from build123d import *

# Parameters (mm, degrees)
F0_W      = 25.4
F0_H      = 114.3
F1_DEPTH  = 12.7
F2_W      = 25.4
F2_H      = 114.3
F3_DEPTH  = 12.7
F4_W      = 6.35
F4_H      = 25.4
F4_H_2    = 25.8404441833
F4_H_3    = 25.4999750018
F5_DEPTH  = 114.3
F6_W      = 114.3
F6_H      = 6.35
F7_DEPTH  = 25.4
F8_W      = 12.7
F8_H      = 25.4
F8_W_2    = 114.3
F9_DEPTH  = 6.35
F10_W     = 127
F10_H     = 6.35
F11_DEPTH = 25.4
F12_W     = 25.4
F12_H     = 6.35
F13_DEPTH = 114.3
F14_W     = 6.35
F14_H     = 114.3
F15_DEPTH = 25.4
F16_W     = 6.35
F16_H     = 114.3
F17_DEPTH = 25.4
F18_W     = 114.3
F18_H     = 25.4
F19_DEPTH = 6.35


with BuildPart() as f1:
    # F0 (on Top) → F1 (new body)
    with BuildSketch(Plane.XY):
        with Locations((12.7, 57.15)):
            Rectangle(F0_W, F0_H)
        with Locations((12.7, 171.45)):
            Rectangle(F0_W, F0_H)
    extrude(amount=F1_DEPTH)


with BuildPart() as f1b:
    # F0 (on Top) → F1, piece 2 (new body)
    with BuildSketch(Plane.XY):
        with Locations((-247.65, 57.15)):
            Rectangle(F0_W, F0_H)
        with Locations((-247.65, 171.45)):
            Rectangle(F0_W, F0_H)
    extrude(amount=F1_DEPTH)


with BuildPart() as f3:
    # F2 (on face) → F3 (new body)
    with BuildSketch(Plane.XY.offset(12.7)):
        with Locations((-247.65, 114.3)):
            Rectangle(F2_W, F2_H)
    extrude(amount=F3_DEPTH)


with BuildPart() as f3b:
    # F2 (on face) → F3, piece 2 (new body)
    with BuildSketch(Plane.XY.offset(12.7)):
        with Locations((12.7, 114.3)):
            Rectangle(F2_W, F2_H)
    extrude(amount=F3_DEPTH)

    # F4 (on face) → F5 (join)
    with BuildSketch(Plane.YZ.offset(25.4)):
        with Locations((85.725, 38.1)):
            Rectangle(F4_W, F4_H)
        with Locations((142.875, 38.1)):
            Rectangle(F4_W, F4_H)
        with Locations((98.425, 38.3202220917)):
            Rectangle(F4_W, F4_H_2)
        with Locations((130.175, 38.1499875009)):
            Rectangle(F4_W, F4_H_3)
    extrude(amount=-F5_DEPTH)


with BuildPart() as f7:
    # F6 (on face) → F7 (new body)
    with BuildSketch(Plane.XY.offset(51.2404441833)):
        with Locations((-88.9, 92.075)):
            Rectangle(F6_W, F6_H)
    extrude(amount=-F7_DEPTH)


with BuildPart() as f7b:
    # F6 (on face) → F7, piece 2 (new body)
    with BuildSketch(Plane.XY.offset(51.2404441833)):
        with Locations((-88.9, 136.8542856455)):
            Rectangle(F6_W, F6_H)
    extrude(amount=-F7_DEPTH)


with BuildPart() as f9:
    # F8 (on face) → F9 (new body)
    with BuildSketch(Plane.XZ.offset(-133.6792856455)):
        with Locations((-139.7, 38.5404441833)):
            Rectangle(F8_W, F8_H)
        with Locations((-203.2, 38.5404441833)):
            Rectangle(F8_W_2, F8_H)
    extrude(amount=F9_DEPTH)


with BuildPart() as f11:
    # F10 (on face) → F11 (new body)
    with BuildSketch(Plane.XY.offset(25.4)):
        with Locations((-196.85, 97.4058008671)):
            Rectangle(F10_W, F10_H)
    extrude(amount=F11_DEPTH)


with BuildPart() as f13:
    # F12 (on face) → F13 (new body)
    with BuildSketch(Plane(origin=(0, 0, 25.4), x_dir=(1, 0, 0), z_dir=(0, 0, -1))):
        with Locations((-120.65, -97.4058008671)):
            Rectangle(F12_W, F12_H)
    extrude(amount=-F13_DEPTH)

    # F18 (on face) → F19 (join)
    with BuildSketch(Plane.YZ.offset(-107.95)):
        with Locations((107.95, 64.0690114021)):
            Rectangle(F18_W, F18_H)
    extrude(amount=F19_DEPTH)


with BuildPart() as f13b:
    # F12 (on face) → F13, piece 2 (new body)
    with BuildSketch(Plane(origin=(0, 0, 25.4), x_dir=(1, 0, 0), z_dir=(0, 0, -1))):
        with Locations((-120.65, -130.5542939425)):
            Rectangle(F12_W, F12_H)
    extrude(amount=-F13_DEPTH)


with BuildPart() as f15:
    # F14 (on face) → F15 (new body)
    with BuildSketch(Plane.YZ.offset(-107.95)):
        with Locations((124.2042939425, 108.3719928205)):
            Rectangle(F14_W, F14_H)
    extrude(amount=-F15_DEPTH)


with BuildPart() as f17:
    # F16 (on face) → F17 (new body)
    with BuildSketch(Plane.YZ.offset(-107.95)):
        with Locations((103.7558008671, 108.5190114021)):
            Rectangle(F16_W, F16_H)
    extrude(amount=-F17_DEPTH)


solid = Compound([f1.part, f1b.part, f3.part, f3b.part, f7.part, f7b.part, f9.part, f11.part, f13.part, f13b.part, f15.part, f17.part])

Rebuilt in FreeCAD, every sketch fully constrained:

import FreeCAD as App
import Part
import Sketcher

V = App.Vector
Q = App.Units.Quantity


def add_polygon(sketch, points):
    """Adds a closed chain of lines whose ends are joined by coincident constraints."""
    first, n = sketch.GeometryCount, len(points)
    for a, b in zip(points, points[1:] + points[:1]):
        sketch.addGeometry(Part.LineSegment(App.Vector(*a, 0), App.Vector(*b, 0)), False)
    for i in range(n):
        sketch.addConstraint(Sketcher.Constraint("Coincident", first + i, 2, first + (i + 1) % n, 1))

doc = App.newDocument("Part")
body = doc.addObject("PartDesign::Body", "Body")

# Sketch on XY plane
sketch1 = doc.addObject("Sketcher::SketchObject", "Sketch")
body.addObject(sketch1)
sketch1.AttachmentSupport = (doc.XY_Plane, [""])
sketch1.MapMode = "FlatFace"
add_polygon(sketch1, [(0, 0), (25, 0), (25, 229), (0, 229)])  # lines 0-3
sketch1.addConstraint(Sketcher.Constraint("Horizontal", 0))
sketch1.addConstraint(Sketcher.Constraint("Vertical", 1))
sketch1.addConstraint(Sketcher.Constraint("Horizontal", 2))
sketch1.addConstraint(Sketcher.Constraint("Vertical", 3))
sketch1.addConstraint(Sketcher.Constraint("Coincident", 3, 2, -1, 1))
sketch1.addConstraint(Sketcher.Constraint("DistanceX", 0, 1, 0, 2, Q("1 in")))
sketch1.addConstraint(Sketcher.Constraint("DistanceY", 1, 1, 1, 2, Q("9 in")))
pad1 = doc.addObject("PartDesign::Pad", "Pad")
body.addObject(pad1)
pad1.Profile = sketch1
pad1.Length = Q("0.5 in")
body2 = doc.addObject("PartDesign::Body", "Body001")

# Sketch on XY plane
sketch2 = doc.addObject("Sketcher::SketchObject", "Sketch001")
body2.addObject(sketch2)
sketch2.AttachmentSupport = (doc.getObject("XY_Plane001"), [""])
sketch2.MapMode = "FlatFace"
add_polygon(sketch2, [(-260, 0), (-235, 0), (-235, 229), (-260, 229)])  # lines 0-3
sketch2.addConstraint(Sketcher.Constraint("Horizontal", 0))
sketch2.addConstraint(Sketcher.Constraint("Vertical", 1))
sketch2.addConstraint(Sketcher.Constraint("Horizontal", 2))
sketch2.addConstraint(Sketcher.Constraint("Vertical", 3))
sketch2.addConstraint(Sketcher.Constraint("PointOnObject", 0, 2, -1))
sketch2.addConstraint(Sketcher.Constraint("DistanceX", 0, 1, 0, 2, Q("1 in")))
sketch2.addConstraint(Sketcher.Constraint("DistanceY", 1, 1, 1, 2, Q("9 in")))
sketch2.addConstraint(Sketcher.Constraint("DistanceX", 0, 2, -1, 1, Q("9.25 in")))
pad2 = doc.addObject("PartDesign::Pad", "Pad001")
body2.addObject(pad2)
pad2.Profile = sketch2
pad2.Length = Q("0.5 in")
body3 = doc.addObject("PartDesign::Body", "Body002")

# Sketch on XY plane
sketch3 = doc.addObject("Sketcher::SketchObject", "Sketch002")
body3.addObject(sketch3)
sketch3.AttachmentSupport = (doc.getObject("XY_Plane002"), [""])
sketch3.MapMode = "FlatFace"
sketch3.AttachmentOffset = App.Placement(V(0, 0, 0.5 * 25.4), App.Rotation())
add_polygon(sketch3, [(-260, 171), (-260, 57), (-235, 57), (-235, 171)])  # lines 0-3
sketch3.addConstraint(Sketcher.Constraint("Vertical", 0))
sketch3.addConstraint(Sketcher.Constraint("Horizontal", 1))
sketch3.addConstraint(Sketcher.Constraint("Vertical", 2))
sketch3.addConstraint(Sketcher.Constraint("Horizontal", 3))
sketch3.addConstraint(Sketcher.Constraint("DistanceX", 1, 1, 1, 2, Q("1 in")))
sketch3.addConstraint(Sketcher.Constraint("DistanceY", 0, 2, 0, 1, Q("4.5 in")))
sketch3.addConstraint(Sketcher.Constraint("DistanceX", 0, 2, -1, 1, Q("10.25 in")))
sketch3.addConstraint(Sketcher.Constraint("DistanceY", -1, 1, 0, 2, Q("2.25 in")))
pad3 = doc.addObject("PartDesign::Pad", "Pad002")
body3.addObject(pad3)
pad3.Profile = sketch3
pad3.Length = Q("0.5 in")
body4 = doc.addObject("PartDesign::Body", "Body003")

# Sketch on XY plane
sketch4 = doc.addObject("Sketcher::SketchObject", "Sketch003")
body4.addObject(sketch4)
sketch4.AttachmentSupport = (doc.getObject("XY_Plane003"), [""])
sketch4.MapMode = "FlatFace"
sketch4.AttachmentOffset = App.Placement(V(0, 0, 0.5 * 25.4), App.Rotation())
add_polygon(sketch4, [(0, 171), (0, 57), (25, 57), (25, 171)])  # lines 0-3
sketch4.addConstraint(Sketcher.Constraint("Vertical", 0))
sketch4.addConstraint(Sketcher.Constraint("Horizontal", 1))
sketch4.addConstraint(Sketcher.Constraint("Vertical", 2))
sketch4.addConstraint(Sketcher.Constraint("Horizontal", 3))
sketch4.addConstraint(Sketcher.Constraint("PointOnObject", 0, 2, -2))
sketch4.addConstraint(Sketcher.Constraint("DistanceX", 1, 1, 1, 2, Q("1 in")))
sketch4.addConstraint(Sketcher.Constraint("DistanceY", 0, 2, 0, 1, Q("4.5 in")))
sketch4.addConstraint(Sketcher.Constraint("DistanceY", -1, 1, 0, 2, Q("2.25 in")))
pad4 = doc.addObject("PartDesign::Pad", "Pad003")
body4.addObject(pad4)
pad4.Profile = sketch4
pad4.Length = Q("0.5 in")

# Sketch on YZ plane
sketch5 = doc.addObject("Sketcher::SketchObject", "Sketch004")
body4.addObject(sketch5)
sketch5.AttachmentSupport = (doc.getObject("YZ_Plane003"), [""])
sketch5.MapMode = "FlatFace"
sketch5.AttachmentOffset = App.Placement(V(0, 0, 1 * 25.4), App.Rotation())
add_polygon(sketch5, [(83, 51), (83, 25), (89, 25), (89, 51)])  # lines 0-3
add_polygon(sketch5, [(140, 51), (140, 25), (146, 25), (146, 51)])  # lines 4-7
add_polygon(sketch5, [(95, 51), (95, 25), (102, 25), (102, 51)])  # lines 8-11
add_polygon(sketch5, [(127, 51), (127, 25), (133, 25), (133, 51)])  # lines 12-15
sketch5.addConstraint(Sketcher.Constraint("Vertical", 0))
sketch5.addConstraint(Sketcher.Constraint("Horizontal", 1))
sketch5.addConstraint(Sketcher.Constraint("Vertical", 2))
sketch5.addConstraint(Sketcher.Constraint("Horizontal", 3))
sketch5.addConstraint(Sketcher.Constraint("Vertical", 4))
sketch5.addConstraint(Sketcher.Constraint("Horizontal", 5))
sketch5.addConstraint(Sketcher.Constraint("Vertical", 6))
sketch5.addConstraint(Sketcher.Constraint("Horizontal", 7))
sketch5.addConstraint(Sketcher.Constraint("Vertical", 8))
sketch5.addConstraint(Sketcher.Constraint("Horizontal", 9))
sketch5.addConstraint(Sketcher.Constraint("Vertical", 10))
sketch5.addConstraint(Sketcher.Constraint("Horizontal", 11))
sketch5.addConstraint(Sketcher.Constraint("Vertical", 12))
sketch5.addConstraint(Sketcher.Constraint("Horizontal", 13))
sketch5.addConstraint(Sketcher.Constraint("Vertical", 14))
sketch5.addConstraint(Sketcher.Constraint("Horizontal", 15))
sketch5.addConstraint(Sketcher.Constraint("Horizontal", 1, 2, 4, 2))
sketch5.addConstraint(Sketcher.Constraint("Horizontal", 3, 2, 6, 2))
sketch5.addConstraint(Sketcher.Constraint("Horizontal", 5, 2, 8, 2))
sketch5.addConstraint(Sketcher.Constraint("Horizontal", 9, 2, 12, 2))
sketch5.addConstraint(Sketcher.Constraint("Equal", 3, 5))
sketch5.addConstraint(Sketcher.Constraint("Equal", 7, 9))
sketch5.addConstraint(Sketcher.Constraint("Equal", 11, 13))
sketch5.addConstraint(Sketcher.Constraint("DistanceY", 0, 2, 0, 1, Q("1 in")))
sketch5.addConstraint(Sketcher.Constraint("DistanceY", -1, 1, 0, 2, Q("1 in")))
sketch5.addConstraint(Sketcher.Constraint("DistanceX", -1, 1, 9, 2, Q("4 in")))
sketch5.addConstraint(Sketcher.Constraint("DistanceX", -1, 1, 12, 2, Q("5 in")))
sketch5.addConstraint(Sketcher.Constraint("DistanceX", 1, 2, 4, 2, Q("2 in")))
sketch5.addConstraint(Sketcher.Constraint("DistanceX", 1, 1, 1, 2, Q("0.25 in")))
sketch5.addConstraint(Sketcher.Constraint("DistanceX", -1, 1, 1, 2, Q("3.5 in")))
sketch5.addConstraint(Sketcher.Constraint("DistanceY", 8, 2, 8, 1, 25.840444))
sketch5.addConstraint(Sketcher.Constraint("DistanceY", 12, 2, 12, 1, 25.499975))
pad5 = doc.addObject("PartDesign::Pad", "Pad004")
body4.addObject(pad5)
pad5.Profile = sketch5
pad5.Length = Q("4.5 in")
pad5.Reversed = True
body5 = doc.addObject("PartDesign::Body", "Body004")

# Sketch on XY plane
sketch6 = doc.addObject("Sketcher::SketchObject", "Sketch005")
body5.addObject(sketch6)
sketch6.AttachmentSupport = (doc.getObject("XY_Plane004"), [""])
sketch6.MapMode = "FlatFace"
sketch6.AttachmentOffset = App.Placement(V(0, 0, 51.240444), App.Rotation())
add_polygon(sketch6, [(-146, 95), (-146, 89), (-32, 89), (-32, 95)])  # lines 0-3
sketch6.addConstraint(Sketcher.Constraint("Vertical", 0))
sketch6.addConstraint(Sketcher.Constraint("Horizontal", 1))
sketch6.addConstraint(Sketcher.Constraint("Vertical", 2))
sketch6.addConstraint(Sketcher.Constraint("Horizontal", 3))
sketch6.addConstraint(Sketcher.Constraint("DistanceX", 1, 1, 1, 2, Q("4.5 in")))
sketch6.addConstraint(Sketcher.Constraint("DistanceY", 0, 2, 0, 1, Q("0.25 in")))
sketch6.addConstraint(Sketcher.Constraint("DistanceY", -1, 1, 0, 2, Q("3.5 in")))
sketch6.addConstraint(Sketcher.Constraint("DistanceX", 0, 2, -1, 1, Q("5.75 in")))
pad6 = doc.addObject("PartDesign::Pad", "Pad005")
body5.addObject(pad6)
pad6.Profile = sketch6
pad6.Length = Q("1 in")
pad6.Reversed = True
body6 = doc.addObject("PartDesign::Body", "Body005")

# Sketch on XY plane
sketch7 = doc.addObject("Sketcher::SketchObject", "Sketch006")
body6.addObject(sketch7)
sketch7.AttachmentSupport = (doc.getObject("XY_Plane005"), [""])
sketch7.MapMode = "FlatFace"
sketch7.AttachmentOffset = App.Placement(V(0, 0, 51.240444), App.Rotation())
add_polygon(sketch7, [(-146, 140), (-146, 134), (-32, 134), (-32, 140)])  # lines 0-3
sketch7.addConstraint(Sketcher.Constraint("Vertical", 0))
sketch7.addConstraint(Sketcher.Constraint("Horizontal", 1))
sketch7.addConstraint(Sketcher.Constraint("Vertical", 2))
sketch7.addConstraint(Sketcher.Constraint("Horizontal", 3))
sketch7.addConstraint(Sketcher.Constraint("DistanceX", 1, 1, 1, 2, Q("4.5 in")))
sketch7.addConstraint(Sketcher.Constraint("DistanceY", 0, 2, 0, 1, Q("0.25 in")))
sketch7.addConstraint(Sketcher.Constraint("DistanceX", 0, 2, -1, 1, Q("5.75 in")))
sketch7.addConstraint(Sketcher.Constraint("DistanceY", -1, 1, 0, 2, 133.679286))
pad7 = doc.addObject("PartDesign::Pad", "Pad006")
body6.addObject(pad7)
pad7.Profile = sketch7
pad7.Length = Q("1 in")
pad7.Reversed = True
body7 = doc.addObject("PartDesign::Body", "Body006")

# Sketch on XZ plane
sketch8 = doc.addObject("Sketcher::SketchObject", "Sketch007")
body7.addObject(sketch8)
sketch8.AttachmentSupport = (doc.getObject("XZ_Plane006"), [""])
sketch8.MapMode = "FlatFace"
sketch8.AttachmentOffset = App.Placement(V(0, 0, -133.679286), App.Rotation())
add_polygon(sketch8, [(-133, 26), (-133, 51), (-260, 51), (-260, 26)])  # lines 0-3
sketch8.addConstraint(Sketcher.Constraint("Vertical", 0))
sketch8.addConstraint(Sketcher.Constraint("Horizontal", 1))
sketch8.addConstraint(Sketcher.Constraint("Vertical", 2))
sketch8.addConstraint(Sketcher.Constraint("Horizontal", 3))
sketch8.addConstraint(Sketcher.Constraint("DistanceX", 1, 2, 1, 1, Q("5 in")))
sketch8.addConstraint(Sketcher.Constraint("DistanceY", 0, 1, 0, 2, Q("1 in")))
sketch8.addConstraint(Sketcher.Constraint("DistanceX", 0, 2, -1, 1, Q("5.25 in")))
sketch8.addConstraint(Sketcher.Constraint("DistanceY", -1, 1, 0, 2, 51.240444))
pad8 = doc.addObject("PartDesign::Pad", "Pad007")
body7.addObject(pad8)
pad8.Profile = sketch8
pad8.Length = Q("0.25 in")
body8 = doc.addObject("PartDesign::Body", "Body007")

# Sketch on XY plane
sketch9 = doc.addObject("Sketcher::SketchObject", "Sketch008")
body8.addObject(sketch9)
sketch9.AttachmentSupport = (doc.getObject("XY_Plane007"), [""])
sketch9.MapMode = "FlatFace"
sketch9.AttachmentOffset = App.Placement(V(0, 0, 1 * 25.4), App.Rotation())
add_polygon(sketch9, [(-260, 101), (-260, 94), (-133, 94), (-133, 101)])  # lines 0-3
sketch9.addConstraint(Sketcher.Constraint("Vertical", 0))
sketch9.addConstraint(Sketcher.Constraint("Horizontal", 1))
sketch9.addConstraint(Sketcher.Constraint("Vertical", 2))
sketch9.addConstraint(Sketcher.Constraint("Horizontal", 3))
sketch9.addConstraint(Sketcher.Constraint("DistanceX", 1, 1, 1, 2, Q("5 in")))
sketch9.addConstraint(Sketcher.Constraint("DistanceY", 0, 2, 0, 1, Q("0.25 in")))
sketch9.addConstraint(Sketcher.Constraint("DistanceX", 0, 2, -1, 1, Q("10.25 in")))
sketch9.addConstraint(Sketcher.Constraint("DistanceY", -1, 1, 0, 2, 94.230801))
pad9 = doc.addObject("PartDesign::Pad", "Pad008")
body8.addObject(pad9)
pad9.Profile = sketch9
pad9.Length = Q("1 in")
body9 = doc.addObject("PartDesign::Body", "Body008")

# Sketch on XY plane
sketch10 = doc.addObject("Sketcher::SketchObject", "Sketch009")
body9.addObject(sketch10)
sketch10.AttachmentSupport = (doc.getObject("XY_Plane008"), [""])
sketch10.MapMode = "FlatFace"
sketch10.AttachmentOffset = App.Placement(V(0, 0, 1 * 25.4), App.Rotation())
add_polygon(sketch10, [(-133, 94), (-133, 101), (-108, 101), (-108, 94)])  # lines 0-3
sketch10.addConstraint(Sketcher.Constraint("Vertical", 0))
sketch10.addConstraint(Sketcher.Constraint("Horizontal", 1))
sketch10.addConstraint(Sketcher.Constraint("Vertical", 2))
sketch10.addConstraint(Sketcher.Constraint("Horizontal", 3))
sketch10.addConstraint(Sketcher.Constraint("DistanceX", 1, 1, 1, 2, Q("1 in")))
sketch10.addConstraint(Sketcher.Constraint("DistanceY", 0, 1, 0, 2, Q("0.25 in")))
sketch10.addConstraint(Sketcher.Constraint("DistanceX", 0, 2, -1, 1, Q("5.25 in")))
sketch10.addConstraint(Sketcher.Constraint("DistanceY", -1, 1, 0, 2, 100.580801))
pad10 = doc.addObject("PartDesign::Pad", "Pad009")
body9.addObject(pad10)
pad10.Profile = sketch10
pad10.Length = Q("4.5 in")

# Sketch on YZ plane
sketch11 = doc.addObject("Sketcher::SketchObject", "Sketch010")
body9.addObject(sketch11)
sketch11.AttachmentSupport = (doc.getObject("YZ_Plane008"), [""])
sketch11.MapMode = "FlatFace"
sketch11.AttachmentOffset = App.Placement(V(0, 0, -4.25 * 25.4), App.Rotation())
add_polygon(sketch11, [(51, 77), (51, 51), (165, 51), (165, 77)])  # lines 0-3
sketch11.addConstraint(Sketcher.Constraint("Vertical", 0))
sketch11.addConstraint(Sketcher.Constraint("Horizontal", 1))
sketch11.addConstraint(Sketcher.Constraint("Vertical", 2))
sketch11.addConstraint(Sketcher.Constraint("Horizontal", 3))
sketch11.addConstraint(Sketcher.Constraint("DistanceY", 0, 2, 0, 1, Q("1 in")))
sketch11.addConstraint(Sketcher.Constraint("DistanceX", 1, 1, 1, 2, Q("4.5 in")))
sketch11.addConstraint(Sketcher.Constraint("DistanceX", -1, 1, 0, 2, Q("2 in")))
sketch11.addConstraint(Sketcher.Constraint("DistanceY", -1, 1, 0, 2, 51.369011))
pad11 = doc.addObject("PartDesign::Pad", "Pad010")
body9.addObject(pad11)
pad11.Profile = sketch11
pad11.Length = Q("0.25 in")
body10 = doc.addObject("PartDesign::Body", "Body009")

# Sketch on XY plane
sketch12 = doc.addObject("Sketcher::SketchObject", "Sketch011")
body10.addObject(sketch12)
sketch12.AttachmentSupport = (doc.getObject("XY_Plane009"), [""])
sketch12.MapMode = "FlatFace"
sketch12.AttachmentOffset = App.Placement(V(0, 0, 1 * 25.4), App.Rotation())
add_polygon(sketch12, [(-133, 127), (-133, 134), (-108, 134), (-108, 127)])  # lines 0-3
sketch12.addConstraint(Sketcher.Constraint("Vertical", 0))
sketch12.addConstraint(Sketcher.Constraint("Horizontal", 1))
sketch12.addConstraint(Sketcher.Constraint("Vertical", 2))
sketch12.addConstraint(Sketcher.Constraint("Horizontal", 3))
sketch12.addConstraint(Sketcher.Constraint("DistanceX", 1, 1, 1, 2, Q("1 in")))
sketch12.addConstraint(Sketcher.Constraint("DistanceY", 0, 1, 0, 2, Q("0.25 in")))
sketch12.addConstraint(Sketcher.Constraint("DistanceX", 0, 2, -1, 1, Q("5.25 in")))
sketch12.addConstraint(Sketcher.Constraint("DistanceY", -1, 1, 0, 2, 133.729294))
pad12 = doc.addObject("PartDesign::Pad", "Pad011")
body10.addObject(pad12)
pad12.Profile = sketch12
pad12.Length = Q("4.5 in")
body11 = doc.addObject("PartDesign::Body", "Body010")

# Sketch on YZ plane
sketch13 = doc.addObject("Sketcher::SketchObject", "Sketch012")
body11.addObject(sketch13)
sketch13.AttachmentSupport = (doc.getObject("YZ_Plane010"), [""])
sketch13.MapMode = "FlatFace"
sketch13.AttachmentOffset = App.Placement(V(0, 0, -4.25 * 25.4), App.Rotation())
add_polygon(sketch13, [(121, 166), (121, 51), (127, 51), (127, 166)])  # lines 0-3
sketch13.addConstraint(Sketcher.Constraint("Vertical", 0))
sketch13.addConstraint(Sketcher.Constraint("Horizontal", 1))
sketch13.addConstraint(Sketcher.Constraint("Vertical", 2))
sketch13.addConstraint(Sketcher.Constraint("Horizontal", 3))
sketch13.addConstraint(Sketcher.Constraint("DistanceY", 0, 2, 0, 1, Q("4.5 in")))
sketch13.addConstraint(Sketcher.Constraint("DistanceX", 1, 1, 1, 2, Q("0.25 in")))
sketch13.addConstraint(Sketcher.Constraint("DistanceX", -1, 1, 0, 2, 121.029294))
sketch13.addConstraint(Sketcher.Constraint("DistanceY", -1, 1, 0, 2, 51.221993))
pad13 = doc.addObject("PartDesign::Pad", "Pad012")
body11.addObject(pad13)
pad13.Profile = sketch13
pad13.Length = Q("1 in")
pad13.Reversed = True
body12 = doc.addObject("PartDesign::Body", "Body011")

# Sketch on YZ plane
sketch14 = doc.addObject("Sketcher::SketchObject", "Sketch013")
body12.addObject(sketch14)
sketch14.AttachmentSupport = (doc.getObject("YZ_Plane011"), [""])
sketch14.MapMode = "FlatFace"
sketch14.AttachmentOffset = App.Placement(V(0, 0, -4.25 * 25.4), App.Rotation())
add_polygon(sketch14, [(101, 166), (101, 51), (107, 51), (107, 166)])  # lines 0-3
sketch14.addConstraint(Sketcher.Constraint("Vertical", 0))
sketch14.addConstraint(Sketcher.Constraint("Horizontal", 1))
sketch14.addConstraint(Sketcher.Constraint("Vertical", 2))
sketch14.addConstraint(Sketcher.Constraint("Horizontal", 3))
sketch14.addConstraint(Sketcher.Constraint("DistanceY", 0, 2, 0, 1, Q("4.5 in")))
sketch14.addConstraint(Sketcher.Constraint("DistanceX", 1, 1, 1, 2, Q("0.25 in")))
sketch14.addConstraint(Sketcher.Constraint("DistanceX", -1, 1, 0, 2, 100.580801))
sketch14.addConstraint(Sketcher.Constraint("DistanceY", -1, 1, 0, 2, 51.369011))
pad14 = doc.addObject("PartDesign::Pad", "Pad013")
body12.addObject(pad14)
pad14.Profile = sketch14
pad14.Length = Q("1 in")
pad14.Reversed = True

doc.recompute()
